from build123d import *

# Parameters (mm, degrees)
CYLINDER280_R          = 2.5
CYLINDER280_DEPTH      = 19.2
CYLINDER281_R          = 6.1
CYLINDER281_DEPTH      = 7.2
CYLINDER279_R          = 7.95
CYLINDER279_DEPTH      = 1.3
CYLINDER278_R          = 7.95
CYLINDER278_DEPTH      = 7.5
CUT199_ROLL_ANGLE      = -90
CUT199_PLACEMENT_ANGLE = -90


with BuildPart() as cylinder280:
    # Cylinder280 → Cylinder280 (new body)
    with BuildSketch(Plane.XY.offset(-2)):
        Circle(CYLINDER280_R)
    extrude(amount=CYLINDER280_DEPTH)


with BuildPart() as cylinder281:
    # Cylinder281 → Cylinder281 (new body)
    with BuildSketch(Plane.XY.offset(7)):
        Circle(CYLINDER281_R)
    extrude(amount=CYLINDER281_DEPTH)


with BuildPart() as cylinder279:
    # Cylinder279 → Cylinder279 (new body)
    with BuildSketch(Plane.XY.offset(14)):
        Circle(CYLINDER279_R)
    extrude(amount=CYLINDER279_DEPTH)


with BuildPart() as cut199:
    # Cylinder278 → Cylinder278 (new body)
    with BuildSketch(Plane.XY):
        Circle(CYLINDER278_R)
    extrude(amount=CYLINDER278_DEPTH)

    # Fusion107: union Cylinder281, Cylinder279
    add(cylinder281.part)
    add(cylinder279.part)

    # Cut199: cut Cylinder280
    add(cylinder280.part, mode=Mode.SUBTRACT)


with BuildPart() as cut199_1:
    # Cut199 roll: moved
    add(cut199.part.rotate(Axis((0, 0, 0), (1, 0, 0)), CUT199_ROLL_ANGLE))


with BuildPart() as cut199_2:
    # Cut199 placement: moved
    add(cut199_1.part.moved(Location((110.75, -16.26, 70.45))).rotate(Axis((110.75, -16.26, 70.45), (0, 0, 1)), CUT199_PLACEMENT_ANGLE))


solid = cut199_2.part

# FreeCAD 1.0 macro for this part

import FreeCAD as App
import Part
import Sketcher

V = App.Vector
Q = App.Units.Quantity

doc = App.newDocument("Part")
body = doc.addObject("PartDesign::Body", "Body")

# Sketch on XY plane
sketch1 = doc.addObject("Sketcher::SketchObject", "Sketch")
body.addObject(sketch1)
sketch1.AttachmentSupport = (doc.XY_Plane, [""])
sketch1.MapMode = "FlatFace"
sketch1.AttachmentOffset = App.Placement(V(0, 0, -2), App.Rotation())
sketch1.addGeometry(Part.Circle(V(0, 0, 0), V(0, 0, 1), 2.5), False)
sketch1.addConstraint([
    Sketcher.Constraint("Coincident", 0, 3, -1, 1),
    Sketcher.Constraint("Diameter", 0, Q("5 mm")),
])
pad1 = doc.addObject("PartDesign::Pad", "Pad")
body.addObject(pad1)
pad1.Profile = sketch1
pad1.Length = 19.2
body2 = doc.addObject("PartDesign::Body", "Body001")

# Sketch on XY plane
sketch2 = doc.addObject("Sketcher::SketchObject", "Sketch001")
body2.addObject(sketch2)
sketch2.AttachmentSupport = (doc.getObject("XY_Plane001"), [""])
sketch2.MapMode = "FlatFace"
sketch2.AttachmentOffset = App.Placement(V(0, 0, 7), App.Rotation())
sketch2.addGeometry(Part.Circle(V(0, 0, 0), V(0, 0, 1), 6), False)
sketch2.addConstraint([
    Sketcher.Constraint("Coincident", 0, 3, -1, 1),
    Sketcher.Constraint("Diameter", 0, Q("12.2 mm")),
])
pad2 = doc.addObject("PartDesign::Pad", "Pad001")
body2.addObject(pad2)
pad2.Profile = sketch2
pad2.Length = 7.2
body3 = doc.addObject("PartDesign::Body", "Body002")

# Sketch on XY plane
sketch3 = doc.addObject("Sketcher::SketchObject", "Sketch002")
body3.addObject(sketch3)
sketch3.AttachmentSupport = (doc.getObject("XY_Plane002"), [""])
sketch3.MapMode = "FlatFace"
sketch3.AttachmentOffset = App.Placement(V(0, 0, 14), App.Rotation())
sketch3.addGeometry(Part.Circle(V(0, 0, 0), V(0, 0, 1), 8), False)
sketch3.addConstraint([
    Sketcher.Constraint("Coincident", 0, 3, -1, 1),
    Sketcher.Constraint("Diameter", 0, Q("15.9 mm")),
])
pad3 = doc.addObject("PartDesign::Pad", "Pad002")
body3.addObject(pad3)
pad3.Profile = sketch3
pad3.Length = 1.3
body4 = doc.addObject("PartDesign::Body", "Body003")

# Sketch on XY plane
sketch4 = doc.addObject("Sketcher::SketchObject", "Sketch003")
body4.addObject(sketch4)
sketch4.AttachmentSupport = (doc.getObject("XY_Plane003"), [""])
sketch4.MapMode = "FlatFace"
sketch4.addGeometry(Part.Circle(V(0, 0, 0), V(0, 0, 1), 8), False)
sketch4.addConstraint([
    Sketcher.Constraint("Coincident", 0, 3, -1, 1),
    Sketcher.Constraint("Diameter", 0, Q("15.9 mm")),
])
pad4 = doc.addObject("PartDesign::Pad", "Pad003")
body4.addObject(pad4)
pad4.Profile = sketch4
pad4.Length = 7.5
doc.recompute()

boolean = doc.addObject("PartDesign::Boolean", "Boolean")
body4.addObject(boolean)
boolean.Type = "Fuse"
boolean.addObjects([body2])
doc.recompute()

boolean2 = doc.addObject("PartDesign::Boolean", "Boolean001")
body4.addObject(boolean2)
boolean2.Type = "Fuse"
boolean2.addObjects([body3])
doc.recompute()

boolean3 = doc.addObject("PartDesign::Boolean", "Boolean002")
body4.addObject(boolean3)
boolean3.Type = "Cut"
boolean3.addObjects([body])
body5 = doc.addObject("PartDesign::Body", "Body004")
doc.recompute()

body4.Placement = App.Placement(V(0, 0, 0), App.Rotation(V(1, 0, 0), 270))
boolean4 = doc.addObject("PartDesign::Boolean", "Boolean003")
body5.addObject(boolean4)
boolean4.Type = "Fuse"
boolean4.addObjects([body4])
body6 = doc.addObject("PartDesign::Body", "Body005")
doc.recompute()

body5.Placement = App.Placement(V(110.75, -16.26, 70.45), App.Rotation(V(0, 0, 1), 270))
boolean5 = doc.addObject("PartDesign::Boolean", "Boolean004")
body6.addObject(boolean5)
boolean5.Type = "Fuse"
boolean5.addObjects([body5])

doc.recompute()
